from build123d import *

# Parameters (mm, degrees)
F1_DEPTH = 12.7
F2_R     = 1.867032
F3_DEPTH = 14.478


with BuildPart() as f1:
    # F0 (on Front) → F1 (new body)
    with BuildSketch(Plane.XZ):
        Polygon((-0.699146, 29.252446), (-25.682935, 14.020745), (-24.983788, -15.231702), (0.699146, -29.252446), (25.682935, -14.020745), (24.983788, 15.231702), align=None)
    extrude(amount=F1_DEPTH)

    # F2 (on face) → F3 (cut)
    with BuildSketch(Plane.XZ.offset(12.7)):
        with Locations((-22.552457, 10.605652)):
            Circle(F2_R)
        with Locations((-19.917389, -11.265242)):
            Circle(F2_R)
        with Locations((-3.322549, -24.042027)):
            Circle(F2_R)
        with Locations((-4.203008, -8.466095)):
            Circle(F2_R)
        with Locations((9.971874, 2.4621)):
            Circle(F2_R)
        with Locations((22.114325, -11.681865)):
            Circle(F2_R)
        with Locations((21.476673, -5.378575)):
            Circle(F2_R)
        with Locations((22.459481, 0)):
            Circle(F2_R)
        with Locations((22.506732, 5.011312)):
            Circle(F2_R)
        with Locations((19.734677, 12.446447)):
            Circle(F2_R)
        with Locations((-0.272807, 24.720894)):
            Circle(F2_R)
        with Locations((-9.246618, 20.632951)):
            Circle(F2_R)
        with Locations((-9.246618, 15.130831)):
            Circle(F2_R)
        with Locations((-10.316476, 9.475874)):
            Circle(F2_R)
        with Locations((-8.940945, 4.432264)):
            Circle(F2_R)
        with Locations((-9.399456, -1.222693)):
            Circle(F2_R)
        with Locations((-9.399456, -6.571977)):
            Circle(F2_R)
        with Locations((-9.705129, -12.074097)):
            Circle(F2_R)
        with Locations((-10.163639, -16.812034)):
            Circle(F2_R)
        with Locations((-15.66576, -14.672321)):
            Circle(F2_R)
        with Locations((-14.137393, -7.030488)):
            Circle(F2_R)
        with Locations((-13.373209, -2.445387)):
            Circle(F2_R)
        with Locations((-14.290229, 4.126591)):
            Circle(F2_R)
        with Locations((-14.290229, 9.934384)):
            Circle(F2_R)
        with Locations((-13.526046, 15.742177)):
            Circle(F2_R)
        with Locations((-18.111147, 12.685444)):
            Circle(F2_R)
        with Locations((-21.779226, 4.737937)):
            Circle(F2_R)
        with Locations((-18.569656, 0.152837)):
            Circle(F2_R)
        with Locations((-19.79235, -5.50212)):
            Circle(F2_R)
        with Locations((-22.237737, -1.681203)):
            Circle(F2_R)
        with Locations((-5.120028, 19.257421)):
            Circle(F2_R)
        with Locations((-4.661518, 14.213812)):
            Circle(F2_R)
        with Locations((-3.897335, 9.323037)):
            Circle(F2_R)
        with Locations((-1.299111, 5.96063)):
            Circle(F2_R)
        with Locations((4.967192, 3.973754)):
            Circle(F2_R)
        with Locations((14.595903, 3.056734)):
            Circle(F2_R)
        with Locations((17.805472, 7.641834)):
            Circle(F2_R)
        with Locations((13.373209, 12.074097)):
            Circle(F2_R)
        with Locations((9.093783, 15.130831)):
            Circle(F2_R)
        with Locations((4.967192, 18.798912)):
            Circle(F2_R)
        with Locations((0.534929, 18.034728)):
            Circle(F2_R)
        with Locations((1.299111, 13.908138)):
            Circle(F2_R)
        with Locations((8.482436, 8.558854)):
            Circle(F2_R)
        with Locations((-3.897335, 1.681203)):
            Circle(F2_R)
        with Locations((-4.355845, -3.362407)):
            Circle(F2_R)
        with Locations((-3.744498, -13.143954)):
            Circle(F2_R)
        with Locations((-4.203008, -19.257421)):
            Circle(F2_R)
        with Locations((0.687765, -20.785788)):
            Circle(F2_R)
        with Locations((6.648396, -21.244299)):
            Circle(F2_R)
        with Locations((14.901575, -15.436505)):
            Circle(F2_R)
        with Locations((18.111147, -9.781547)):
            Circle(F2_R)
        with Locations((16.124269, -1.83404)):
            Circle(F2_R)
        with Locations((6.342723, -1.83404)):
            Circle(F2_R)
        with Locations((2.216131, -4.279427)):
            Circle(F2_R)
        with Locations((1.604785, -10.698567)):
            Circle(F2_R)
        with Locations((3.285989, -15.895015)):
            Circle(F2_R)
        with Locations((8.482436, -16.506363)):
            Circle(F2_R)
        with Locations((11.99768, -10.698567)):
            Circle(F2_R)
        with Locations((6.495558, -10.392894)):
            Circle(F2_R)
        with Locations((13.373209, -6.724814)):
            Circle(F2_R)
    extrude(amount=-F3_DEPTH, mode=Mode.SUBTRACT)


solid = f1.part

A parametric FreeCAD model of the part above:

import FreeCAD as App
import Part
import Sketcher
from FreeCAD import Vector
Q = App.Units.Quantity


def add_polygon(sketch, points):
    """Adds a closed chain of lines whose ends are joined by coincident constraints."""
    first, n = sketch.GeometryCount, len(points)
    for a, b in zip(points, points[1:] + points[:1]):
        sketch.addGeometry(Part.LineSegment(App.Vector(*a, 0), App.Vector(*b, 0)), False)
    for i in range(n):
        sketch.addConstraint(Sketcher.Constraint("Coincident", first + i, 2, first + (i + 1) % n, 1))

doc = App.newDocument("Part")
params = doc.addObject("Spreadsheet::Sheet", "Params")
for row, (alias, value) in enumerate([
    ("sketch1_length", "1.152 in"),
    ("pad1_length", "0.5 in"),
    ("pocket1_length", "0.57 in"),
], start=1):
    params.set(f"A{row}", alias)
    params.set(f"B{row}", "=" + value)
    params.setAlias(f"B{row}", alias)

body = doc.addObject("PartDesign::Body", "Body")

# Sketch on XZ plane
sketch1 = body.newObject("Sketcher::SketchObject", "Sketch")
sketch1.AttachmentSupport = (doc.getObject("XZ_Plane"), [""])
sketch1.MapMode = "FlatFace"
add_polygon(sketch1, [(-1, 29), (-26, 14), (-25, -15), (1, -29), (26, -14), (25, 15)])  # lines 0-5
sketch1.addConstraint(Sketcher.Constraint("Symmetric", 0, 2, 3, 2, -1, 1))
sketch1.addConstraint(Sketcher.Constraint("Symmetric", 1, 2, 4, 2, -1, 1))
sketch1.addConstraint(Sketcher.Constraint("Symmetric", 2, 2, 5, 2, -1, 1))
sketch1.addConstraint(Sketcher.Constraint("Equal", 0, 1))
sketch1.addConstraint(Sketcher.Constraint("Equal", 1, 2))
sketch1.addConstraint(Sketcher.Constraint("Distance", 0, Q("1.152 in")))
sketch1.addConstraint(Sketcher.Constraint("DistanceY", 2, 2, 3, 2, 15.231701))
sketch1.addConstraint(Sketcher.Constraint("DistanceX", 1, 2, -1, 1, 24.983788))
sketch1.addConstraint(Sketcher.Constraint("DistanceX", 0, 2, 2, 2, 26.382081))
sketch1.setExpression("Constraints[11]", "Params.sketch1_length")
pad1 = body.newObject("PartDesign::Pad", "Pad")
pad1.Profile = sketch1
pad1.setExpression("Length", "Params.pad1_length")

# Sketch on XZ plane
sketch2 = body.newObject("Sketcher::SketchObject", "Sketch001")
sketch2.AttachmentSupport = (doc.getObject("XZ_Plane"), [""])
sketch2.MapMode = "FlatFace"
sketch2.AttachmentOffset = App.Placement(Vector(0, 0, 0.5 * 25.4), App.Rotation())
sketch2.addGeometry(Part.Circle(Vector(-22.6, 10.6, 0), Vector(0, 0, 1), 1.9), False)
sketch2.addGeometry(Part.Circle(Vector(-19.9, -11.3, 0), Vector(0, 0, 1), 1.9), False)
sketch2.addGeometry(Part.Circle(Vector(-3.3, -24, 0), Vector(0, 0, 1), 1.9), False)
sketch2.addGeometry(Part.Circle(Vector(-4.2, -8.5, 0), Vector(0, 0, 1), 1.9), False)
sketch2.addGeometry(Part.Circle(Vector(10, 2.5, 0), Vector(0, 0, 1), 1.9), False)
sketch2.addGeometry(Part.Circle(Vector(22.1, -11.7, 0), Vector(0, 0, 1), 1.9), False)
sketch2.addGeometry(Part.Circle(Vector(21.5, -5.4, 0), Vector(0, 0, 1), 1.9), False)
sketch2.addGeometry(Part.Circle(Vector(22.5, 0, 0), Vector(0, 0, 1), 1.9), False)
sketch2.addGeometry(Part.Circle(Vector(22.5, 5, 0), Vector(0, 0, 1), 1.9), False)
sketch2.addGeometry(Part.Circle(Vector(19.7, 12.4, 0), Vector(0, 0, 1), 1.9), False)
sketch2.addGeometry(Part.Circle(Vector(-0.3, 24.7, 0), Vector(0, 0, 1), 1.9), False)
sketch2.addGeometry(Part.Circle(Vector(-9.2, 20.6, 0), Vector(0, 0, 1), 1.9), False)
sketch2.addGeometry(Part.Circle(Vector(-9.2, 15.1, 0), Vector(0, 0, 1), 1.9), False)
sketch2.addGeometry(Part.Circle(Vector(-10.3, 9.5, 0), Vector(0, 0, 1), 1.9), False)
sketch2.addGeometry(Part.Circle(Vector(-8.9, 4.4, 0), Vector(0, 0, 1), 1.9), False)
sketch2.addGeometry(Part.Circle(Vector(-9.4, -1.2, 0), Vector(0, 0, 1), 1.9), False)
sketch2.addGeometry(Part.Circle(Vector(-9.4, -6.6, 0), Vector(0, 0, 1), 1.9), False)
sketch2.addGeometry(Part.Circle(Vector(-9.7, -12.1, 0), Vector(0, 0, 1), 1.9), False)
sketch2.addGeometry(Part.Circle(Vector(-10.2, -16.8, 0), Vector(0, 0, 1), 1.9), False)
sketch2.addGeometry(Part.Circle(Vector(-15.7, -14.7, 0), Vector(0, 0, 1), 1.9), False)
sketch2.addGeometry(Part.Circle(Vector(-14.1, -7, 0), Vector(0, 0, 1), 1.9), False)
sketch2.addGeometry(Part.Circle(Vector(-13.4, -2.4, 0), Vector(0, 0, 1), 1.9), False)
sketch2.addGeometry(Part.Circle(Vector(-14.3, 4.1, 0), Vector(0, 0, 1), 1.9), False)
sketch2.addGeometry(Part.Circle(Vector(-14.3, 9.9, 0), Vector(0, 0, 1), 1.9), False)
sketch2.addGeometry(Part.Circle(Vector(-13.5, 15.7, 0), Vector(0, 0, 1), 1.9), False)
sketch2.addGeometry(Part.Circle(Vector(-18.1, 12.7, 0), Vector(0, 0, 1), 1.9), False)
sketch2.addGeometry(Part.Circle(Vector(-21.8, 4.7, 0), Vector(0, 0, 1), 1.9), False)
sketch2.addGeometry(Part.Circle(Vector(-18.6, 0.2, 0), Vector(0, 0, 1), 1.9), False)
sketch2.addGeometry(Part.Circle(Vector(-19.8, -5.5, 0), Vector(0, 0, 1), 1.9), False)
sketch2.addGeometry(Part.Circle(Vector(-22.2, -1.7, 0), Vector(0, 0, 1), 1.9), False)
sketch2.addGeometry(Part.Circle(Vector(-5.1, 19.3, 0), Vector(0, 0, 1), 1.9), False)
sketch2.addGeometry(Part.Circle(Vector(-4.7, 14.2, 0), Vector(0, 0, 1), 1.9), False)
sketch2.addGeometry(Part.Circle(Vector(-3.9, 9.3, 0), Vector(0, 0, 1), 1.9), False)
sketch2.addGeometry(Part.Circle(Vector(-1.3, 6, 0), Vector(0, 0, 1), 1.9), False)
sketch2.addGeometry(Part.Circle(Vector(5, 4, 0), Vector(0, 0, 1), 1.9), False)
sketch2.addGeometry(Part.Circle(Vector(14.6, 3.1, 0), Vector(0, 0, 1), 1.9), False)
sketch2.addGeometry(Part.Circle(Vector(17.8, 7.6, 0), Vector(0, 0, 1), 1.9), False)
sketch2.addGeometry(Part.Circle(Vector(13.4, 12.1, 0), Vector(0, 0, 1), 1.9), False)
sketch2.addGeometry(Part.Circle(Vector(9.1, 15.1, 0), Vector(0, 0, 1), 1.9), False)
sketch2.addGeometry(Part.Circle(Vector(5, 18.8, 0), Vector(0, 0, 1), 1.9), False)
sketch2.addGeometry(Part.Circle(Vector(0.5, 18, 0), Vector(0, 0, 1), 1.9), False)
sketch2.addGeometry(Part.Circle(Vector(1.3, 13.9, 0), Vector(0, 0, 1), 1.9), False)
sketch2.addGeometry(Part.Circle(Vector(8.5, 8.6, 0), Vector(0, 0, 1), 1.9), False)
sketch2.addGeometry(Part.Circle(Vector(-3.9, 1.7, 0), Vector(0, 0, 1), 1.9), False)
sketch2.addGeometry(Part.Circle(Vector(-4.4, -3.4, 0), Vector(0, 0, 1), 1.9), False)
sketch2.addGeometry(Part.Circle(Vector(-3.7, -13.1, 0), Vector(0, 0, 1), 1.9), False)
sketch2.addGeometry(Part.Circle(Vector(-4.2, -19.3, 0), Vector(0, 0, 1), 1.9), False)
sketch2.addGeometry(Part.Circle(Vector(0.7, -20.8, 0), Vector(0, 0, 1), 1.9), False)
sketch2.addGeometry(Part.Circle(Vector(6.6, -21.2, 0), Vector(0, 0, 1), 1.9), False)
sketch2.addGeometry(Part.Circle(Vector(14.9, -15.4, 0), Vector(0, 0, 1), 1.9), False)
sketch2.addGeometry(Part.Circle(Vector(18.1, -9.8, 0), Vector(0, 0, 1), 1.9), False)
sketch2.addGeometry(Part.Circle(Vector(16.1, -1.8, 0), Vector(0, 0, 1), 1.9), False)
sketch2.addGeometry(Part.Circle(Vector(6.3, -1.8, 0), Vector(0, 0, 1), 1.9), False)
sketch2.addGeometry(Part.Circle(Vector(2.2, -4.3, 0), Vector(0, 0, 1), 1.9), False)
sketch2.addGeometry(Part.Circle(Vector(1.6, -10.7, 0), Vector(0, 0, 1), 1.9), False)
sketch2.addGeometry(Part.Circle(Vector(3.3, -15.9, 0), Vector(0, 0, 1), 1.9), False)
sketch2.addGeometry(Part.Circle(Vector(8.5, -16.5, 0), Vector(0, 0, 1), 1.9), False)
sketch2.addGeometry(Part.Circle(Vector(12, -10.7, 0), Vector(0, 0, 1), 1.9), False)
sketch2.addGeometry(Part.Circle(Vector(6.5, -10.4, 0), Vector(0, 0, 1), 1.9), False)
sketch2.addGeometry(Part.Circle(Vector(13.4, -6.7, 0), Vector(0, 0, 1), 1.9), False)
sketch2.addConstraint(Sketcher.Constraint("Equal", 0, 1))
sketch2.addConstraint(Sketcher.Constraint("Equal", 1, 2))
sketch2.addConstraint(Sketcher.Constraint("Equal", 2, 3))
sketch2.addConstraint(Sketcher.Constraint("Equal", 3, 4))
sketch2.addConstraint(Sketcher.Constraint("Equal", 4, 5))
sketch2.addConstraint(Sketcher.Constraint("Equal", 5, 6))
sketch2.addConstraint(Sketcher.Constraint("Equal", 6, 7))
sketch2.addConstraint(Sketcher.Constraint("Equal", 7, 8))
sketch2.addConstraint(Sketcher.Constraint("Equal", 8, 9))
sketch2.addConstraint(Sketcher.Constraint("Equal", 9, 10))
sketch2.addConstraint(Sketcher.Constraint("Equal", 10, 11))
sketch2.addConstraint(Sketcher.Constraint("Equal", 11, 12))
sketch2.addConstraint(Sketcher.Constraint("Equal", 12, 13))
sketch2.addConstraint(Sketcher.Constraint("Equal", 13, 14))
sketch2.addConstraint(Sketcher.Constraint("Equal", 14, 15))
sketch2.addConstraint(Sketcher.Constraint("Equal", 15, 16))
sketch2.addConstraint(Sketcher.Constraint("Equal", 16, 17))
sketch2.addConstraint(Sketcher.Constraint("Equal", 17, 18))
sketch2.addConstraint(Sketcher.Constraint("Equal", 18, 19))
sketch2.addConstraint(Sketcher.Constraint("Equal", 19, 20))
sketch2.addConstraint(Sketcher.Constraint("Equal", 20, 21))
sketch2.addConstraint(Sketcher.Constraint("Equal", 21, 22))
sketch2.addConstraint(Sketcher.Constraint("Equal", 22, 23))
sketch2.addConstraint(Sketcher.Constraint("Equal", 23, 24))
sketch2.addConstraint(Sketcher.Constraint("Equal", 24, 25))
sketch2.addConstraint(Sketcher.Constraint("Equal", 25, 26))
sketch2.addConstraint(Sketcher.Constraint("Equal", 26, 27))
sketch2.addConstraint(Sketcher.Constraint("Equal", 27, 28))
sketch2.addConstraint(Sketcher.Constraint("Equal", 28, 29))
sketch2.addConstraint(Sketcher.Constraint("Equal", 29, 30))
sketch2.addConstraint(Sketcher.Constraint("Equal", 30, 31))
sketch2.addConstraint(Sketcher.Constraint("Equal", 31, 32))
sketch2.addConstraint(Sketcher.Constraint("Equal", 32, 33))
sketch2.addConstraint(Sketcher.Constraint("Equal", 33, 34))
sketch2.addConstraint(Sketcher.Constraint("Equal", 34, 35))
sketch2.addConstraint(Sketcher.Constraint("Equal", 35, 36))
sketch2.addConstraint(Sketcher.Constraint("Equal", 36, 37))
sketch2.addConstraint(Sketcher.Constraint("Equal", 37, 38))
sketch2.addConstraint(Sketcher.Constraint("Equal", 38, 39))
sketch2.addConstraint(Sketcher.Constraint("Equal", 39, 40))
sketch2.addConstraint(Sketcher.Constraint("Equal", 40, 41))
sketch2.addConstraint(Sketcher.Constraint("Equal", 41, 42))
sketch2.addConstraint(Sketcher.Constraint("Equal", 42, 43))
sketch2.addConstraint(Sketcher.Constraint("Equal", 43, 44))
sketch2.addConstraint(Sketcher.Constraint("Equal", 44, 45))
sketch2.addConstraint(Sketcher.Constraint("Equal", 45, 46))
sketch2.addConstraint(Sketcher.Constraint("Equal", 46, 47))
sketch2.addConstraint(Sketcher.Constraint("Equal", 47, 48))
sketch2.addConstraint(Sketcher.Constraint("Equal", 48, 49))
sketch2.addConstraint(Sketcher.Constraint("Equal", 49, 50))
sketch2.addConstraint(Sketcher.Constraint("Equal", 50, 51))
sketch2.addConstraint(Sketcher.Constraint("Equal", 51, 52))
sketch2.addConstraint(Sketcher.Constraint("Equal", 52, 53))
sketch2.addConstraint(Sketcher.Constraint("Equal", 53, 54))
sketch2.addConstraint(Sketcher.Constraint("Equal", 54, 55))
sketch2.addConstraint(Sketcher.Constraint("Equal", 55, 56))
sketch2.addConstraint(Sketcher.Constraint("Equal", 56, 57))
sketch2.addConstraint(Sketcher.Constraint("Equal", 57, 58))
sketch2.addConstraint(Sketcher.Constraint("Equal", 58, 59))
sketch2.addConstraint(Sketcher.Constraint("PointOnObject", 7, 3, -1))
sketch2.addConstraint(Sketcher.Constraint("Horizontal", 12, 3, 38, 3))
sketch2.addConstraint(Sketcher.Constraint("Horizontal", 51, 3, 52, 3))
sketch2.addConstraint(Sketcher.Constraint("Horizontal", 54, 3, 57, 3))
sketch2.addConstraint(Sketcher.Constraint("Vertical", 11, 3, 12, 3))
sketch2.addConstraint(Sketcher.Constraint("Vertical", 15, 3, 16, 3))
sketch2.addConstraint(Sketcher.Constraint("Vertical", 22, 3, 23, 3))
sketch2.addConstraint(Sketcher.Constraint("Vertical", 34, 3, 39, 3))
sketch2.addConstraint(Sketcher.Constraint("Vertical", 32, 3, 43, 3))
sketch2.addConstraint(Sketcher.Constraint("Vertical", 3, 3, 46, 3))
sketch2.addConstraint(Sketcher.Constraint("Vertical", 42, 3, 56, 3))
sketch2.addConstraint(Sketcher.Constraint("Vertical", 37, 3, 59, 3))
sketch2.addConstraint(Sketcher.Constraint("Diameter", 0, 3.734064))
sketch2.addConstraint(Sketcher.Constraint("DistanceY", -1, 1, 4, 3, 2.4621))
sketch2.addConstraint(Sketcher.Constraint("DistanceX", 45, 3, -1, 1, 3.744498))
sketch2.addConstraint(Sketcher.Constraint("DistanceY", 48, 3, -1, 1, 21.244299))
sketch2.addConstraint(Sketcher.Constraint("DistanceX", 4, 3, 6, 3, 11.504799))
sketch2.addConstraint(Sketcher.Constraint("DistanceX", 3, 3, 10, 3, 3.930201))
sketch2.addConstraint(Sketcher.Constraint("DistanceY", 0, 3, 11, 3, 10.027299))
sketch2.addConstraint(Sketcher.Constraint("DistanceY", 3, 3, 15, 3, 7.243402))
sketch2.addConstraint(Sketcher.Constraint("DistanceY", 20, 3, 21, 3, 4.585101))
sketch2.addConstraint(Sketcher.Constraint("DistanceX", 25, 3, 24, 3, 4.585101))
sketch2.addConstraint(Sketcher.Constraint("DistanceY", 27, 3, 26, 3, 4.5851))
sketch2.addConstraint(Sketcher.Constraint("DistanceX", 27, 3, 15, 3, 9.1702))
sketch2.addConstraint(Sketcher.Constraint("DistanceY", 19, 3, 28, 3, 9.170201))
sketch2.addConstraint(Sketcher.Constraint("DistanceX", 12, 3, 31, 3, 4.5851))
sketch2.addConstraint(Sketcher.Constraint("DistanceY", 35, 3, 36, 3, 4.5851))
sketch2.addConstraint(Sketcher.Constraint("DistanceX", 4, 3, 36, 3, 7.833598))
sketch2.addConstraint(Sketcher.Constraint("DistanceX", 10, 3, 39, 3, 5.239999))
sketch2.addConstraint(Sketcher.Constraint("DistanceY", 31, 3, 39, 3, 4.5851))
sketch2.addConstraint(Sketcher.Constraint("DistanceY", 32, 3, 41, 3, 4.585101))
sketch2.addConstraint(Sketcher.Constraint("DistanceY", 34, 3, 42, 3, 4.5851))
sketch2.addConstraint(Sketcher.Constraint("DistanceX", 14, 3, 44, 3, 4.5851))
sketch2.addConstraint(Sketcher.Constraint("DistanceX", 49, 3, 6, 3, 6.575098))
sketch2.addConstraint(Sketcher.Constraint("DistanceY", -1, 1, 0, 3, 10.605652))
sketch2.addConstraint(Sketcher.Constraint("DistanceX", 1, 3, -1, 1, 19.917389))
sketch2.addConstraint(Sketcher.Constraint("DistanceX", 2, 3, -1, 1, 3.322549))
sketch2.addConstraint(Sketcher.Constraint("DistanceX", -1, 1, 7, 3, 22.459481))
sketch2.addConstraint(Sketcher.Constraint("DistanceX", -1, 1, 8, 3, 22.506732))
sketch2.addConstraint(Sketcher.Constraint("DistanceY", -1, 1, 12, 3, 15.130831))
sketch2.addConstraint(Sketcher.Constraint("DistanceX", 17, 3, -1, 1, 9.705129))
sketch2.addConstraint(Sketcher.Constraint("DistanceX", 18, 3, -1, 1, 10.163639))
sketch2.addConstraint(Sketcher.Constraint("DistanceX", 19, 3, -1, 1, 15.66576))
sketch2.addConstraint(Sketcher.Constraint("DistanceY", 19, 3, -1, 1, 14.672321))
sketch2.addConstraint(Sketcher.Constraint("DistanceX", 21, 3, -1, 1, 13.373209))
sketch2.addConstraint(Sketcher.Constraint("DistanceX", 22, 3, -1, 1, 14.290229))
sketch2.addConstraint(Sketcher.Constraint("DistanceY", -1, 1, 22, 3, 4.126591))
sketch2.addConstraint(Sketcher.Constraint("DistanceX", 28, 3, -1, 1, 19.79235))
sketch2.addConstraint(Sketcher.Constraint("DistanceY", -1, 1, 30, 3, 19.257421))
sketch2.addConstraint(Sketcher.Constraint("DistanceX", 33, 3, -1, 1, 1.299111))
sketch2.addConstraint(Sketcher.Constraint("DistanceY", -1, 1, 33, 3, 5.96063))
sketch2.addConstraint(Sketcher.Constraint("DistanceX", -1, 1, 34, 3, 4.967192))
sketch2.addConstraint(Sketcher.Constraint("DistanceX", -1, 1, 37, 3, 13.373209))
sketch2.addConstraint(Sketcher.Constraint("DistanceX", -1, 1, 40, 3, 0.534929))
sketch2.addConstraint(Sketcher.Constraint("DistanceY", -1, 1, 40, 3, 18.034728))
sketch2.addConstraint(Sketcher.Constraint("DistanceX", -1, 1, 41, 3, 1.299111))
sketch2.addConstraint(Sketcher.Constraint("DistanceY", 46, 3, -1, 1, 19.257421))
sketch2.addConstraint(Sketcher.Constraint("DistanceY", 47, 3, -1, 1, 20.785788))
sketch2.addConstraint(Sketcher.Constraint("DistanceX", -1, 1, 51, 3, 16.124269))
sketch2.addConstraint(Sketcher.Constraint("DistanceY", 51, 3, -1, 1, 1.83404))
sketch2.addConstraint(Sketcher.Constraint("DistanceX", -1, 1, 53, 3, 2.216131))
sketch2.addConstraint(Sketcher.Constraint("DistanceX", -1, 1, 55, 3, 3.285989))
sketch2.addConstraint(Sketcher.Constraint("DistanceX", -1, 1, 57, 3, 11.99768))
sketch2.addConstraint(Sketcher.Constraint("DistanceX", 0, 3, 1, 3, 2.635068))
sketch2.addConstraint(Sketcher.Constraint("DistanceY", 2, 3, 0, 3, 34.647679))
sketch2.addConstraint(Sketcher.Constraint("DistanceX", 0, 3, 4, 3, 32.524331))
sketch2.addConstraint(Sketcher.Constraint("DistanceX", 4, 3, 5, 3, 12.142451))
sketch2.addConstraint(Sketcher.Constraint("DistanceY", 5, 3, 3, 3, 3.21577))
sketch2.addConstraint(Sketcher.Constraint("DistanceY", 5, 3, 6, 3, 6.30329))
sketch2.addConstraint(Sketcher.Constraint("DistanceY", 2, 3, 6, 3, 18.663452))
sketch2.addConstraint(Sketcher.Constraint("DistanceY", 6, 3, 9, 3, 17.825022))
sketch2.addConstraint(Sketcher.Constraint("DistanceY", 3, 3, 10, 3, 33.186989))
sketch2.addConstraint(Sketcher.Constraint("DistanceX", 11, 3, 10, 3, 8.973811))
sketch2.addConstraint(Sketcher.Constraint("DistanceX", 0, 3, 13, 3, 12.235981))
sketch2.addConstraint(Sketcher.Constraint("DistanceY", 13, 3, 10, 3, 15.24502))
sketch2.addConstraint(Sketcher.Constraint("DistanceX", 13, 3, 14, 3, 1.375531))
sketch2.addConstraint(Sketcher.Constraint("DistanceY", 14, 3, 13, 3, 5.04361))
sketch2.addConstraint(Sketcher.Constraint("DistanceX", 15, 3, 14, 3, 0.458511))
sketch2.addConstraint(Sketcher.Constraint("DistanceY", 1, 3, 15, 3, 10.042549))
sketch2.addConstraint(Sketcher.Constraint("DistanceY", 16, 3, 14, 3, 11.004241))
sketch2.addConstraint(Sketcher.Constraint("DistanceY", 17, 3, 16, 3, 5.50212))
sketch2.addConstraint(Sketcher.Constraint("DistanceY", 18, 3, 3, 3, 8.345939))
sketch2.addConstraint(Sketcher.Constraint("DistanceY", 20, 3, 16, 3, 0.458511))
sketch2.addConstraint(Sketcher.Constraint("DistanceY", 13, 3, 23, 3, 0.45851))
sketch2.addConstraint(Sketcher.Constraint("DistanceX", 24, 3, 13, 3, 3.20957))
sketch2.addConstraint(Sketcher.Constraint("DistanceY", 23, 3, 25, 3, 2.75106))
sketch2.addConstraint(Sketcher.Constraint("DistanceX", 0, 3, 26, 3, 0.773231))
sketch2.addConstraint(Sketcher.Constraint("DistanceY", 15, 3, 27, 3, 1.37553))
sketch2.addConstraint(Sketcher.Constraint("DistanceX", 29, 3, 27, 3, 3.668081))
sketch2.addConstraint(Sketcher.Constraint("DistanceY", 29, 3, 27, 3, 1.83404))
sketch2.addConstraint(Sketcher.Constraint("DistanceX", 11, 3, 30, 3, 4.12659))
sketch2.addConstraint(Sketcher.Constraint("DistanceY", 31, 3, 12, 3, 0.917019))
sketch2.addConstraint(Sketcher.Constraint("DistanceX", 13, 3, 32, 3, 6.419141))
sketch2.addConstraint(Sketcher.Constraint("DistanceY", 34, 3, 14, 3, 0.45851))
sketch2.addConstraint(Sketcher.Constraint("DistanceX", 4, 3, 35, 3, 4.624029))
sketch2.addConstraint(Sketcher.Constraint("DistanceY", 35, 3, 8, 3, 1.954578))
sketch2.addConstraint(Sketcher.Constraint("DistanceY", 35, 3, 34, 3, 0.91702))
sketch2.addConstraint(Sketcher.Constraint("DistanceX", 37, 3, 9, 3, 6.361468))
sketch2.addConstraint(Sketcher.Constraint("DistanceY", 37, 3, 9, 3, 0.37235))
sketch2.addConstraint(Sketcher.Constraint("DistanceX", 38, 3, 36, 3, 8.711689))
sketch2.addConstraint(Sketcher.Constraint("DistanceY", 41, 3, 40, 3, 4.12659))
sketch2.addConstraint(Sketcher.Constraint("DistanceY", 43, 3, 14, 3, 2.751061))
sketch2.addConstraint(Sketcher.Constraint("DistanceY", 44, 3, 43, 3, 5.04361))
sketch2.addConstraint(Sketcher.Constraint("DistanceY", 45, 3, 3, 3, 4.677859))
sketch2.addConstraint(Sketcher.Constraint("DistanceX", 47, 3, 48, 3, 5.960631))
sketch2.addConstraint(Sketcher.Constraint("DistanceY", 49, 3, 5, 3, 3.75464))
sketch2.addConstraint(Sketcher.Constraint("DistanceX", 48, 3, 49, 3, 8.253179))
sketch2.addConstraint(Sketcher.Constraint("DistanceX", 50, 3, 5, 3, 4.003178))
sketch2.addConstraint(Sketcher.Constraint("DistanceY", 5, 3, 50, 3, 1.900318))
sketch2.addConstraint(Sketcher.Constraint("DistanceX", 52, 3, 4, 3, 3.629151))
sketch2.addConstraint(Sketcher.Constraint("DistanceY", 53, 3, 44, 3, 0.91702))
sketch2.addConstraint(Sketcher.Constraint("DistanceY", 54, 3, 53, 3, 6.41914))
sketch2.addConstraint(Sketcher.Constraint("DistanceX", 44, 3, 54, 3, 5.96063))
sketch2.addConstraint(Sketcher.Constraint("DistanceY", 55, 3, 54, 3, 5.196448))
sketch2.addConstraint(Sketcher.Constraint("DistanceX", 48, 3, 56, 3, 1.83404))
sketch2.addConstraint(Sketcher.Constraint("DistanceX", 55, 3, 58, 3, 3.209569))
sketch2.addConstraint(Sketcher.Constraint("DistanceY", 55, 3, 58, 3, 5.502121))
sketch2.addConstraint(Sketcher.Constraint("DistanceY", 56, 3, 58, 3, 6.113469))
sketch2.addConstraint(Sketcher.Constraint("DistanceY", 58, 3, 59, 3, 3.66808))
sketch2.addConstraint(Sketcher.Constraint("DistanceX", 20, 3, -1, 1, 14.137393))
sketch2.addConstraint(Sketcher.Constraint("DistanceY", -1, 1, 24, 3, 15.742177))
pocket1 = body.newObject("PartDesign::Pocket", "Pocket")
pocket1.Profile = sketch2
pocket1.setExpression("Length", "Params.pocket1_length")

doc.recompute()
